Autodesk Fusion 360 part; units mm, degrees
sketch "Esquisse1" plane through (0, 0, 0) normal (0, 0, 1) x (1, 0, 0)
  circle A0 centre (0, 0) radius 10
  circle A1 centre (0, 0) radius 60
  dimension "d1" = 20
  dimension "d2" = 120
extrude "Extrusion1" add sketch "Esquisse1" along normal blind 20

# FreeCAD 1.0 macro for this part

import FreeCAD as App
import Part
import Sketcher

V = App.Vector

doc = App.newDocument("Part")
body = doc.addObject("PartDesign::Body", "Body")

# Sketch on XY plane
sketch1 = body.newObject("Sketcher::SketchObject", "Sketch")
sketch1.AttachmentSupport = (doc.getObject("XY_Plane"), [""])
sketch1.MapMode = "FlatFace"
sketch1.addGeometry(Part.Circle(V(0, 0, 0), V(0, 0, 1), 60), False)
sketch1.addGeometry(Part.Circle(V(0, 0, 0), V(0, 0, 1), 10), False)
sketch1.addConstraint(Sketcher.Constraint("Coincident", 0, 3, -1, 1))
sketch1.addConstraint(Sketcher.Constraint("Coincident", 1, 3, -1, 1))
sketch1.addConstraint(Sketcher.Constraint("Diameter", 0, 120.0))
sketch1.addConstraint(Sketcher.Constraint("Diameter", 1, 20.0))
pad1 = body.newObject("PartDesign::Pad", "Pad")
pad1.Profile = sketch1
pad1.Length = 20

doc.recompute()
